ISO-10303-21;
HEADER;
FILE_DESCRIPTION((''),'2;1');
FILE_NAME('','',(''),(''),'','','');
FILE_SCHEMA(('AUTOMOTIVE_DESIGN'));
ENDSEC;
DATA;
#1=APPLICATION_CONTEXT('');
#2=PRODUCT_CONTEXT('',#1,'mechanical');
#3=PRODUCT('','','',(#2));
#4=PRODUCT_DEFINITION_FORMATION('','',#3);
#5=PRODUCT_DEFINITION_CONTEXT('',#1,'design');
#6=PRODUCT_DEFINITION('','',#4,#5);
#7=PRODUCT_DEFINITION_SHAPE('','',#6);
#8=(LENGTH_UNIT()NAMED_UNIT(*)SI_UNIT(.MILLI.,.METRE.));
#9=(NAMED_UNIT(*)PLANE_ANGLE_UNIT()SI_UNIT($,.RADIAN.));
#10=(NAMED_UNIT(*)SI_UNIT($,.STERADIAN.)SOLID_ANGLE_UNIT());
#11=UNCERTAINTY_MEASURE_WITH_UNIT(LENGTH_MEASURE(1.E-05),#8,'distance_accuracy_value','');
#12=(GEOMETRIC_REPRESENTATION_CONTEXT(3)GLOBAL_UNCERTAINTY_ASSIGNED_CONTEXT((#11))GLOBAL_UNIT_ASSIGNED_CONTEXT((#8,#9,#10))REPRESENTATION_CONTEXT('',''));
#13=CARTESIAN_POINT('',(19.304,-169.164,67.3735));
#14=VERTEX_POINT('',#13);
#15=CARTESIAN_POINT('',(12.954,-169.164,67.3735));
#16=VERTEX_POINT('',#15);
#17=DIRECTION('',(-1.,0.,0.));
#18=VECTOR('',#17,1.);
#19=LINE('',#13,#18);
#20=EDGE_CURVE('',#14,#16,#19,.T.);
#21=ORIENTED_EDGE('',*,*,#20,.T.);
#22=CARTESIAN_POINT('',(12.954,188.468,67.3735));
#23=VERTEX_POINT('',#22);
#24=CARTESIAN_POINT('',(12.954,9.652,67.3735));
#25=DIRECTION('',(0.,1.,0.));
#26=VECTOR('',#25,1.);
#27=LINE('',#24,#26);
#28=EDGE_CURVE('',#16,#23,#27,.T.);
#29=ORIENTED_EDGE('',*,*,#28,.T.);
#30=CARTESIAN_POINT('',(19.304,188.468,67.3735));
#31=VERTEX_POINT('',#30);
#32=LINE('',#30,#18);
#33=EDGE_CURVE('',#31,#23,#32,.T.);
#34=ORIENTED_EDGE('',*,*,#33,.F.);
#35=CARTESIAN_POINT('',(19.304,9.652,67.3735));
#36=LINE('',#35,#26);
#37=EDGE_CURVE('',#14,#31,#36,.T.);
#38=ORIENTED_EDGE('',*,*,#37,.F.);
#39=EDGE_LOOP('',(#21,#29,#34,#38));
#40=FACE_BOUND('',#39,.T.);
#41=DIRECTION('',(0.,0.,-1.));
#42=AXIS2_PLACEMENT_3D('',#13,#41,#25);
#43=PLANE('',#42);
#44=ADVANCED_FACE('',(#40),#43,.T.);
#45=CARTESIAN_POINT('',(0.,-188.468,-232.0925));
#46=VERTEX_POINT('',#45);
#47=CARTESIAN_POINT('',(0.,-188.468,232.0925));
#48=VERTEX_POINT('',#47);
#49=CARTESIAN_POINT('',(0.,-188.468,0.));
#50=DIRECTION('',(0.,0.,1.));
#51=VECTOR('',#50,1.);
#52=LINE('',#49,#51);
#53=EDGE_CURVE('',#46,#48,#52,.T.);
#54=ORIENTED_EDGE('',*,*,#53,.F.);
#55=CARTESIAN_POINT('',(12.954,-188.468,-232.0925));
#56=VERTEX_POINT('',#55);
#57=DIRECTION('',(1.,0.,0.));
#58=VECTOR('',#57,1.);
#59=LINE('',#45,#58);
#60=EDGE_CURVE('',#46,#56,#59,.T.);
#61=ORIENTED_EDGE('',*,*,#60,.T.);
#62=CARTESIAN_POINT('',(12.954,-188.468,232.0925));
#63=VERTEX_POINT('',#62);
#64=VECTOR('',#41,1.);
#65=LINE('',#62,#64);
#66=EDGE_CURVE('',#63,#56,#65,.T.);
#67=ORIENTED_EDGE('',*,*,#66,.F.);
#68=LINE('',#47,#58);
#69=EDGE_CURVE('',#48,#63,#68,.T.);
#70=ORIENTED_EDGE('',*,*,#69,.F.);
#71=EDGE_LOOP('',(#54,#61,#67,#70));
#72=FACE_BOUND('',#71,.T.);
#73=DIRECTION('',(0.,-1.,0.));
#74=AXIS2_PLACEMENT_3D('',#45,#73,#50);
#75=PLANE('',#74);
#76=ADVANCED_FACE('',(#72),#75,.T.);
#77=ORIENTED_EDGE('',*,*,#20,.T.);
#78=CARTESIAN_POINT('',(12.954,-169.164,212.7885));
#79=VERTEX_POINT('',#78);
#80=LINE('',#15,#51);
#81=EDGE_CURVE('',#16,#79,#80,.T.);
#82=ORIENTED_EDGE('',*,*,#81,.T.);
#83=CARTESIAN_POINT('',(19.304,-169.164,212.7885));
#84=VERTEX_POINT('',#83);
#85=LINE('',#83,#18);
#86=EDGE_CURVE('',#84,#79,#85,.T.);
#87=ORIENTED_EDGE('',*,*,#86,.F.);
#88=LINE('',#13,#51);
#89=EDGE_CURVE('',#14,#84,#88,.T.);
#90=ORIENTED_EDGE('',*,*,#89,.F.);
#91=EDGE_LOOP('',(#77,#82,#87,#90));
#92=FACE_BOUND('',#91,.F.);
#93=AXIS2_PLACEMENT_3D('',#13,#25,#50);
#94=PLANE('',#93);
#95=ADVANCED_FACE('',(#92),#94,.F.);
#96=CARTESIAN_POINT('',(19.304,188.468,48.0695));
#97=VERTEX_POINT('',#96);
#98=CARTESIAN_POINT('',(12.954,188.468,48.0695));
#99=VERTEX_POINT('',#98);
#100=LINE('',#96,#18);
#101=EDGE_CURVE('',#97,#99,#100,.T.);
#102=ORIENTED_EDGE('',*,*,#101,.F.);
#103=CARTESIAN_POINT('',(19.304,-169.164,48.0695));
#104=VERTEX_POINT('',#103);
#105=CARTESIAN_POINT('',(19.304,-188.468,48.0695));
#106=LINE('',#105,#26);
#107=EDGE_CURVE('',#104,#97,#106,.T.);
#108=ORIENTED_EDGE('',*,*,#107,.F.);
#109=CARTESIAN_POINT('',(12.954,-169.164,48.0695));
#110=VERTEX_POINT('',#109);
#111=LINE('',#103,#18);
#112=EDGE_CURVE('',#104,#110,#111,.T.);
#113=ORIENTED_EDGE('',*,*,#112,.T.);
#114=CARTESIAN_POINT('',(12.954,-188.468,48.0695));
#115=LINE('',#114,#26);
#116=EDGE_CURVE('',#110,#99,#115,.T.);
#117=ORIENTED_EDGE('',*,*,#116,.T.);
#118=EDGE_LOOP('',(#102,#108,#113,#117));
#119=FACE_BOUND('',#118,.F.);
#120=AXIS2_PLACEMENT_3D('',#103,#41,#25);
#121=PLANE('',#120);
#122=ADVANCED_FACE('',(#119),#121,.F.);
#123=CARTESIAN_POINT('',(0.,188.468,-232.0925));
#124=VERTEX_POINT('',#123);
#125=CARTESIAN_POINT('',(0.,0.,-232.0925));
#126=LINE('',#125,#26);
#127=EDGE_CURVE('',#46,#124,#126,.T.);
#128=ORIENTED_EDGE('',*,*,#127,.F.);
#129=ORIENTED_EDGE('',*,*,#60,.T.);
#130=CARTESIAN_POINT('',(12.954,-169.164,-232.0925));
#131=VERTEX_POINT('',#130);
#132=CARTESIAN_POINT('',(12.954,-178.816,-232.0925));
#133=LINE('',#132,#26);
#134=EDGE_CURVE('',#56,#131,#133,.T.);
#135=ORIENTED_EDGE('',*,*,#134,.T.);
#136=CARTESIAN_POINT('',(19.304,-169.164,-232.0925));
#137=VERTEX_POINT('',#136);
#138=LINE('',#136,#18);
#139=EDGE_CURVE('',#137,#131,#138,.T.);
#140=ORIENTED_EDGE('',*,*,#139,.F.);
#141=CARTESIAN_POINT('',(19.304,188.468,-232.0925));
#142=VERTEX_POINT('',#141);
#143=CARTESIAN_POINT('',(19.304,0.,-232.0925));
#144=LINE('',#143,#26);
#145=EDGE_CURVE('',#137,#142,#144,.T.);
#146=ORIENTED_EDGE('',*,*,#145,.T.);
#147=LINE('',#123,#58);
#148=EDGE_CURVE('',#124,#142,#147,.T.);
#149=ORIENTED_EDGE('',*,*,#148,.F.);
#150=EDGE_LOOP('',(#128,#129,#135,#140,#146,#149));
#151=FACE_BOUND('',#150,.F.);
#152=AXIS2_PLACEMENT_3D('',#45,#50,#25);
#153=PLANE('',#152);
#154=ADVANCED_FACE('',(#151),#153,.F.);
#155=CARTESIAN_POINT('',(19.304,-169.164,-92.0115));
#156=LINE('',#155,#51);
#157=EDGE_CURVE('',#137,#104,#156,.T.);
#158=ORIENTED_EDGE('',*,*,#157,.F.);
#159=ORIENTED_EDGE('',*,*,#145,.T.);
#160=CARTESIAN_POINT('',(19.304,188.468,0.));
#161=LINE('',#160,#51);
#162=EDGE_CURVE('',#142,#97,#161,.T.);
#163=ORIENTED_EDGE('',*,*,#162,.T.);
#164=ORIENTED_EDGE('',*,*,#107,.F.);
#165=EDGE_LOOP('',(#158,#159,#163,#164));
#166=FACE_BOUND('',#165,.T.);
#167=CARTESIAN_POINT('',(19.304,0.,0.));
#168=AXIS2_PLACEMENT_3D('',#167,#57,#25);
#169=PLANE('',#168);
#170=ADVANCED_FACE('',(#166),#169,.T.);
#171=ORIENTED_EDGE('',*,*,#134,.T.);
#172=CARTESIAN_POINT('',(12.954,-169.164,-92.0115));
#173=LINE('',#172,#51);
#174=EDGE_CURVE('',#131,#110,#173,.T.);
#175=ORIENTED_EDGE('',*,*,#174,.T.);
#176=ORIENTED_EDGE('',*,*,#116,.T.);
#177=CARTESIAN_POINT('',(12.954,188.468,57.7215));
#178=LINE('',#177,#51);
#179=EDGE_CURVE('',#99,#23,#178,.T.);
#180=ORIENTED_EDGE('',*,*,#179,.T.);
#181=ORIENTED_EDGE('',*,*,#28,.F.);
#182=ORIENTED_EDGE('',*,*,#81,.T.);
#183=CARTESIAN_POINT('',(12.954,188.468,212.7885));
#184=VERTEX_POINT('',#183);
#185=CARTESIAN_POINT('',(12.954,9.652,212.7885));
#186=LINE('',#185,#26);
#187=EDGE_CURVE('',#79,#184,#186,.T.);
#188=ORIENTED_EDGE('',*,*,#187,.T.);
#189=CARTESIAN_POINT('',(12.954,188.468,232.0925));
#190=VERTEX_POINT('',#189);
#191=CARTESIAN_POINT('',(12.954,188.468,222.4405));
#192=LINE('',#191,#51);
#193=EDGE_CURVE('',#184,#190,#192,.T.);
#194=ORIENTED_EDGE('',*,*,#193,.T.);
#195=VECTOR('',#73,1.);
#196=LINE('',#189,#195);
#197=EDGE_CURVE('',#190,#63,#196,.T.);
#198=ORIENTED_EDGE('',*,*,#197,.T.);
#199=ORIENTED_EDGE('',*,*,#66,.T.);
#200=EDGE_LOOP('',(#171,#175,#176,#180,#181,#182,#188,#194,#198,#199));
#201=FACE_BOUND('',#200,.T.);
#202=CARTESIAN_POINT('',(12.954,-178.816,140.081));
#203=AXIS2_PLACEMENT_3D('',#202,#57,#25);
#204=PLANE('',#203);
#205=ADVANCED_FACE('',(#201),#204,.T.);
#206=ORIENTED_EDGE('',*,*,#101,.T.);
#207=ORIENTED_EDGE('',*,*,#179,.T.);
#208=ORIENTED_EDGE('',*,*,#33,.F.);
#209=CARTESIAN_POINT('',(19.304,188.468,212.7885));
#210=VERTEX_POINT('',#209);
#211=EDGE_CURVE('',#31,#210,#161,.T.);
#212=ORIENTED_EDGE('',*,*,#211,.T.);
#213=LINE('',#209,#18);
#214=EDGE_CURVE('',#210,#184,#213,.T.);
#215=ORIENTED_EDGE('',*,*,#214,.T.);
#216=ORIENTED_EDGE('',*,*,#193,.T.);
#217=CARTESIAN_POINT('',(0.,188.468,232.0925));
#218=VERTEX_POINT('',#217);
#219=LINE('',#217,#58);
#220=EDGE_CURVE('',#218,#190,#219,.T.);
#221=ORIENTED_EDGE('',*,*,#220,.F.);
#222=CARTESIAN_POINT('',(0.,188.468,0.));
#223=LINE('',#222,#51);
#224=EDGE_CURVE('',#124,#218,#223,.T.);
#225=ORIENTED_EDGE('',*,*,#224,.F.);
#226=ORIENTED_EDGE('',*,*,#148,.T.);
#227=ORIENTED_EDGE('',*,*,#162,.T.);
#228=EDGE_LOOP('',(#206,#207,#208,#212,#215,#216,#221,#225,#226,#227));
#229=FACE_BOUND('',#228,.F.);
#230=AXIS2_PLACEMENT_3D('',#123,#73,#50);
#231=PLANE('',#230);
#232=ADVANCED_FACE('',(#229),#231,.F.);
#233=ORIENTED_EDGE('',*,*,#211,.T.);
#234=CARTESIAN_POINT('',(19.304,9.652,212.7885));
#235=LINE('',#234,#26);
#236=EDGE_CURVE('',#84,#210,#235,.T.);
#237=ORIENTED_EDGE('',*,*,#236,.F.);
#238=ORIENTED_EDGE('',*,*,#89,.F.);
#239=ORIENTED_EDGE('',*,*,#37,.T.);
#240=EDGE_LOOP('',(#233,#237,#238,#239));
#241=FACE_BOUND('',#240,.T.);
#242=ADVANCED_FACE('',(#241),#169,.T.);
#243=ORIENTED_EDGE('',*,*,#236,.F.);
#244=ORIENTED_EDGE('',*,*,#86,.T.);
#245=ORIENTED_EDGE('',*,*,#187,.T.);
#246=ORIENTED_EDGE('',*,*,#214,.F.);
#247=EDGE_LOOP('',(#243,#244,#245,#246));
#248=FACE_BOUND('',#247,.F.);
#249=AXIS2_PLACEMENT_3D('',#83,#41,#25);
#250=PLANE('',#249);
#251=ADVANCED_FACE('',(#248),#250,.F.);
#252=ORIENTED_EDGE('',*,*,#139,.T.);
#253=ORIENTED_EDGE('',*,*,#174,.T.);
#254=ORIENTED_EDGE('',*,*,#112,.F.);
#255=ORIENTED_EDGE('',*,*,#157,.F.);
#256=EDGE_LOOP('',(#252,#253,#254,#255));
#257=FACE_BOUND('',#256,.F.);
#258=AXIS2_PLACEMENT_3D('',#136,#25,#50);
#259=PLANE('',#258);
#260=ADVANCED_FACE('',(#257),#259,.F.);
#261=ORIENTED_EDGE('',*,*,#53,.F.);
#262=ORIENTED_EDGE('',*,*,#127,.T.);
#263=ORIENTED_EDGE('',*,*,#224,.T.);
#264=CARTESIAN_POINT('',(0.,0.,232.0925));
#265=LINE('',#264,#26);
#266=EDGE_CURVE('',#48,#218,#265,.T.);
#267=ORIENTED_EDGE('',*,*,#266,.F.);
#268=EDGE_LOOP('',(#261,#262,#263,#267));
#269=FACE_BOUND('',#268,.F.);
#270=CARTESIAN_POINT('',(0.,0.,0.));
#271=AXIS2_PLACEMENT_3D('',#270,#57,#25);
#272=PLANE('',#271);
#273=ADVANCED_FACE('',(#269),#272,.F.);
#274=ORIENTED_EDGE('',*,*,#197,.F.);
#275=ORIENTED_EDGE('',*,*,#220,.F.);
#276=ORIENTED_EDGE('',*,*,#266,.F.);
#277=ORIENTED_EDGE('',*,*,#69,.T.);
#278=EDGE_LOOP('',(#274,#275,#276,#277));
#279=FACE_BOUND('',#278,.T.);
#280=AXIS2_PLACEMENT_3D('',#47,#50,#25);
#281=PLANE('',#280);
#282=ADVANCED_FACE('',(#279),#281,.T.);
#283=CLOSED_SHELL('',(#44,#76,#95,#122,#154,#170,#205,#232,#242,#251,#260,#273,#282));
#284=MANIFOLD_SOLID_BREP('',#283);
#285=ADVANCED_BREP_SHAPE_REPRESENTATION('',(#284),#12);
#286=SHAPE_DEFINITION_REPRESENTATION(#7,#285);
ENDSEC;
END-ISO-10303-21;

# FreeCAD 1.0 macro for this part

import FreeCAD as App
import Part
import Sketcher
from FreeCAD import Vector
Q = App.Units.Quantity


def add_polygon(sketch, points):
    """Adds a closed chain of lines whose ends are joined by coincident constraints."""
    first, n = sketch.GeometryCount, len(points)
    for a, b in zip(points, points[1:] + points[:1]):
        sketch.addGeometry(Part.LineSegment(App.Vector(*a, 0), App.Vector(*b, 0)), False)
    for i in range(n):
        sketch.addConstraint(Sketcher.Constraint("Coincident", first + i, 2, first + (i + 1) % n, 1))

doc = App.newDocument("Part")
body = doc.addObject("PartDesign::Body", "Body")

# Sketch on YZ plane
sketch1 = doc.addObject("Sketcher::SketchObject", "Sketch")
body.addObject(sketch1)
sketch1.AttachmentSupport = (doc.YZ_Plane, [""])
sketch1.MapMode = "FlatFace"
add_polygon(sketch1, [(-188, 232), (-188, -232), (188, -232), (188, 232)])  # lines 0-3
sketch1.addConstraint([
    Sketcher.Constraint("Vertical", 0),
    Sketcher.Constraint("Horizontal", 1),
    Sketcher.Constraint("Vertical", 2),
    Sketcher.Constraint("Horizontal", 3),
    Sketcher.Constraint("Symmetric", 0, 2, 2, 2, -1, 1),
    Sketcher.Constraint("DistanceX", 1, 1, 1, 2, Q("14.84 in")),
    Sketcher.Constraint("DistanceY", 0, 2, 0, 1, Q("18.275 in")),
])
pad1 = doc.addObject("PartDesign::Pad", "Pad")
body.addObject(pad1)
pad1.Profile = sketch1
pad1.Length = Q("0.76 in")

# Sketch on YZ plane
sketch2 = doc.addObject("Sketcher::SketchObject", "Sketch001")
body.addObject(sketch2)
sketch2.AttachmentSupport = (doc.YZ_Plane, [""])
sketch2.MapMode = "FlatFace"
sketch2.AttachmentOffset = App.Placement(Vector(0, 0, 0.76 * 25.4), App.Rotation())
add_polygon(sketch2, [(-188, -232), (-169, -232), (-169, 48), (188, 48), (188, 67), (-169, 67), (-169, 213), (188, 213), (188, 232), (-188, 232)])  # lines 0-9
sketch2.addConstraint([
    Sketcher.Constraint("Horizontal", 0),
    Sketcher.Constraint("Vertical", 1),
    Sketcher.Constraint("Horizontal", 2),
    Sketcher.Constraint("Vertical", 3),
    Sketcher.Constraint("Horizontal", 4),
    Sketcher.Constraint("Vertical", 5),
    Sketcher.Constraint("Horizontal", 6),
    Sketcher.Constraint("Vertical", 7),
    Sketcher.Constraint("Horizontal", 8),
    Sketcher.Constraint("Vertical", 9),
    Sketcher.Constraint("Symmetric", 7, 2, 9, 2, -1, 1),
    Sketcher.Constraint("Vertical", 1, 2, 4, 2),
    Sketcher.Constraint("Vertical", 3, 2, 6, 2),
    Sketcher.Constraint("Equal", 0, 3),
    Sketcher.Constraint("Equal", 3, 7),
    Sketcher.Constraint("DistanceX", 0, 1, 0, 2, Q("0.76 in")),
    Sketcher.Constraint("DistanceX", 2, 1, 2, 2, Q("14.08 in")),
    Sketcher.Constraint("DistanceY", 1, 1, 1, 2, Q("11.03 in")),
    Sketcher.Constraint("DistanceY", 5, 1, 5, 2, Q("5.725 in")),
])
pocket1 = doc.addObject("PartDesign::Pocket", "Pocket")
body.addObject(pocket1)
pocket1.Profile = sketch2
pocket1.Length = Q("0.25 in")

doc.recompute()
